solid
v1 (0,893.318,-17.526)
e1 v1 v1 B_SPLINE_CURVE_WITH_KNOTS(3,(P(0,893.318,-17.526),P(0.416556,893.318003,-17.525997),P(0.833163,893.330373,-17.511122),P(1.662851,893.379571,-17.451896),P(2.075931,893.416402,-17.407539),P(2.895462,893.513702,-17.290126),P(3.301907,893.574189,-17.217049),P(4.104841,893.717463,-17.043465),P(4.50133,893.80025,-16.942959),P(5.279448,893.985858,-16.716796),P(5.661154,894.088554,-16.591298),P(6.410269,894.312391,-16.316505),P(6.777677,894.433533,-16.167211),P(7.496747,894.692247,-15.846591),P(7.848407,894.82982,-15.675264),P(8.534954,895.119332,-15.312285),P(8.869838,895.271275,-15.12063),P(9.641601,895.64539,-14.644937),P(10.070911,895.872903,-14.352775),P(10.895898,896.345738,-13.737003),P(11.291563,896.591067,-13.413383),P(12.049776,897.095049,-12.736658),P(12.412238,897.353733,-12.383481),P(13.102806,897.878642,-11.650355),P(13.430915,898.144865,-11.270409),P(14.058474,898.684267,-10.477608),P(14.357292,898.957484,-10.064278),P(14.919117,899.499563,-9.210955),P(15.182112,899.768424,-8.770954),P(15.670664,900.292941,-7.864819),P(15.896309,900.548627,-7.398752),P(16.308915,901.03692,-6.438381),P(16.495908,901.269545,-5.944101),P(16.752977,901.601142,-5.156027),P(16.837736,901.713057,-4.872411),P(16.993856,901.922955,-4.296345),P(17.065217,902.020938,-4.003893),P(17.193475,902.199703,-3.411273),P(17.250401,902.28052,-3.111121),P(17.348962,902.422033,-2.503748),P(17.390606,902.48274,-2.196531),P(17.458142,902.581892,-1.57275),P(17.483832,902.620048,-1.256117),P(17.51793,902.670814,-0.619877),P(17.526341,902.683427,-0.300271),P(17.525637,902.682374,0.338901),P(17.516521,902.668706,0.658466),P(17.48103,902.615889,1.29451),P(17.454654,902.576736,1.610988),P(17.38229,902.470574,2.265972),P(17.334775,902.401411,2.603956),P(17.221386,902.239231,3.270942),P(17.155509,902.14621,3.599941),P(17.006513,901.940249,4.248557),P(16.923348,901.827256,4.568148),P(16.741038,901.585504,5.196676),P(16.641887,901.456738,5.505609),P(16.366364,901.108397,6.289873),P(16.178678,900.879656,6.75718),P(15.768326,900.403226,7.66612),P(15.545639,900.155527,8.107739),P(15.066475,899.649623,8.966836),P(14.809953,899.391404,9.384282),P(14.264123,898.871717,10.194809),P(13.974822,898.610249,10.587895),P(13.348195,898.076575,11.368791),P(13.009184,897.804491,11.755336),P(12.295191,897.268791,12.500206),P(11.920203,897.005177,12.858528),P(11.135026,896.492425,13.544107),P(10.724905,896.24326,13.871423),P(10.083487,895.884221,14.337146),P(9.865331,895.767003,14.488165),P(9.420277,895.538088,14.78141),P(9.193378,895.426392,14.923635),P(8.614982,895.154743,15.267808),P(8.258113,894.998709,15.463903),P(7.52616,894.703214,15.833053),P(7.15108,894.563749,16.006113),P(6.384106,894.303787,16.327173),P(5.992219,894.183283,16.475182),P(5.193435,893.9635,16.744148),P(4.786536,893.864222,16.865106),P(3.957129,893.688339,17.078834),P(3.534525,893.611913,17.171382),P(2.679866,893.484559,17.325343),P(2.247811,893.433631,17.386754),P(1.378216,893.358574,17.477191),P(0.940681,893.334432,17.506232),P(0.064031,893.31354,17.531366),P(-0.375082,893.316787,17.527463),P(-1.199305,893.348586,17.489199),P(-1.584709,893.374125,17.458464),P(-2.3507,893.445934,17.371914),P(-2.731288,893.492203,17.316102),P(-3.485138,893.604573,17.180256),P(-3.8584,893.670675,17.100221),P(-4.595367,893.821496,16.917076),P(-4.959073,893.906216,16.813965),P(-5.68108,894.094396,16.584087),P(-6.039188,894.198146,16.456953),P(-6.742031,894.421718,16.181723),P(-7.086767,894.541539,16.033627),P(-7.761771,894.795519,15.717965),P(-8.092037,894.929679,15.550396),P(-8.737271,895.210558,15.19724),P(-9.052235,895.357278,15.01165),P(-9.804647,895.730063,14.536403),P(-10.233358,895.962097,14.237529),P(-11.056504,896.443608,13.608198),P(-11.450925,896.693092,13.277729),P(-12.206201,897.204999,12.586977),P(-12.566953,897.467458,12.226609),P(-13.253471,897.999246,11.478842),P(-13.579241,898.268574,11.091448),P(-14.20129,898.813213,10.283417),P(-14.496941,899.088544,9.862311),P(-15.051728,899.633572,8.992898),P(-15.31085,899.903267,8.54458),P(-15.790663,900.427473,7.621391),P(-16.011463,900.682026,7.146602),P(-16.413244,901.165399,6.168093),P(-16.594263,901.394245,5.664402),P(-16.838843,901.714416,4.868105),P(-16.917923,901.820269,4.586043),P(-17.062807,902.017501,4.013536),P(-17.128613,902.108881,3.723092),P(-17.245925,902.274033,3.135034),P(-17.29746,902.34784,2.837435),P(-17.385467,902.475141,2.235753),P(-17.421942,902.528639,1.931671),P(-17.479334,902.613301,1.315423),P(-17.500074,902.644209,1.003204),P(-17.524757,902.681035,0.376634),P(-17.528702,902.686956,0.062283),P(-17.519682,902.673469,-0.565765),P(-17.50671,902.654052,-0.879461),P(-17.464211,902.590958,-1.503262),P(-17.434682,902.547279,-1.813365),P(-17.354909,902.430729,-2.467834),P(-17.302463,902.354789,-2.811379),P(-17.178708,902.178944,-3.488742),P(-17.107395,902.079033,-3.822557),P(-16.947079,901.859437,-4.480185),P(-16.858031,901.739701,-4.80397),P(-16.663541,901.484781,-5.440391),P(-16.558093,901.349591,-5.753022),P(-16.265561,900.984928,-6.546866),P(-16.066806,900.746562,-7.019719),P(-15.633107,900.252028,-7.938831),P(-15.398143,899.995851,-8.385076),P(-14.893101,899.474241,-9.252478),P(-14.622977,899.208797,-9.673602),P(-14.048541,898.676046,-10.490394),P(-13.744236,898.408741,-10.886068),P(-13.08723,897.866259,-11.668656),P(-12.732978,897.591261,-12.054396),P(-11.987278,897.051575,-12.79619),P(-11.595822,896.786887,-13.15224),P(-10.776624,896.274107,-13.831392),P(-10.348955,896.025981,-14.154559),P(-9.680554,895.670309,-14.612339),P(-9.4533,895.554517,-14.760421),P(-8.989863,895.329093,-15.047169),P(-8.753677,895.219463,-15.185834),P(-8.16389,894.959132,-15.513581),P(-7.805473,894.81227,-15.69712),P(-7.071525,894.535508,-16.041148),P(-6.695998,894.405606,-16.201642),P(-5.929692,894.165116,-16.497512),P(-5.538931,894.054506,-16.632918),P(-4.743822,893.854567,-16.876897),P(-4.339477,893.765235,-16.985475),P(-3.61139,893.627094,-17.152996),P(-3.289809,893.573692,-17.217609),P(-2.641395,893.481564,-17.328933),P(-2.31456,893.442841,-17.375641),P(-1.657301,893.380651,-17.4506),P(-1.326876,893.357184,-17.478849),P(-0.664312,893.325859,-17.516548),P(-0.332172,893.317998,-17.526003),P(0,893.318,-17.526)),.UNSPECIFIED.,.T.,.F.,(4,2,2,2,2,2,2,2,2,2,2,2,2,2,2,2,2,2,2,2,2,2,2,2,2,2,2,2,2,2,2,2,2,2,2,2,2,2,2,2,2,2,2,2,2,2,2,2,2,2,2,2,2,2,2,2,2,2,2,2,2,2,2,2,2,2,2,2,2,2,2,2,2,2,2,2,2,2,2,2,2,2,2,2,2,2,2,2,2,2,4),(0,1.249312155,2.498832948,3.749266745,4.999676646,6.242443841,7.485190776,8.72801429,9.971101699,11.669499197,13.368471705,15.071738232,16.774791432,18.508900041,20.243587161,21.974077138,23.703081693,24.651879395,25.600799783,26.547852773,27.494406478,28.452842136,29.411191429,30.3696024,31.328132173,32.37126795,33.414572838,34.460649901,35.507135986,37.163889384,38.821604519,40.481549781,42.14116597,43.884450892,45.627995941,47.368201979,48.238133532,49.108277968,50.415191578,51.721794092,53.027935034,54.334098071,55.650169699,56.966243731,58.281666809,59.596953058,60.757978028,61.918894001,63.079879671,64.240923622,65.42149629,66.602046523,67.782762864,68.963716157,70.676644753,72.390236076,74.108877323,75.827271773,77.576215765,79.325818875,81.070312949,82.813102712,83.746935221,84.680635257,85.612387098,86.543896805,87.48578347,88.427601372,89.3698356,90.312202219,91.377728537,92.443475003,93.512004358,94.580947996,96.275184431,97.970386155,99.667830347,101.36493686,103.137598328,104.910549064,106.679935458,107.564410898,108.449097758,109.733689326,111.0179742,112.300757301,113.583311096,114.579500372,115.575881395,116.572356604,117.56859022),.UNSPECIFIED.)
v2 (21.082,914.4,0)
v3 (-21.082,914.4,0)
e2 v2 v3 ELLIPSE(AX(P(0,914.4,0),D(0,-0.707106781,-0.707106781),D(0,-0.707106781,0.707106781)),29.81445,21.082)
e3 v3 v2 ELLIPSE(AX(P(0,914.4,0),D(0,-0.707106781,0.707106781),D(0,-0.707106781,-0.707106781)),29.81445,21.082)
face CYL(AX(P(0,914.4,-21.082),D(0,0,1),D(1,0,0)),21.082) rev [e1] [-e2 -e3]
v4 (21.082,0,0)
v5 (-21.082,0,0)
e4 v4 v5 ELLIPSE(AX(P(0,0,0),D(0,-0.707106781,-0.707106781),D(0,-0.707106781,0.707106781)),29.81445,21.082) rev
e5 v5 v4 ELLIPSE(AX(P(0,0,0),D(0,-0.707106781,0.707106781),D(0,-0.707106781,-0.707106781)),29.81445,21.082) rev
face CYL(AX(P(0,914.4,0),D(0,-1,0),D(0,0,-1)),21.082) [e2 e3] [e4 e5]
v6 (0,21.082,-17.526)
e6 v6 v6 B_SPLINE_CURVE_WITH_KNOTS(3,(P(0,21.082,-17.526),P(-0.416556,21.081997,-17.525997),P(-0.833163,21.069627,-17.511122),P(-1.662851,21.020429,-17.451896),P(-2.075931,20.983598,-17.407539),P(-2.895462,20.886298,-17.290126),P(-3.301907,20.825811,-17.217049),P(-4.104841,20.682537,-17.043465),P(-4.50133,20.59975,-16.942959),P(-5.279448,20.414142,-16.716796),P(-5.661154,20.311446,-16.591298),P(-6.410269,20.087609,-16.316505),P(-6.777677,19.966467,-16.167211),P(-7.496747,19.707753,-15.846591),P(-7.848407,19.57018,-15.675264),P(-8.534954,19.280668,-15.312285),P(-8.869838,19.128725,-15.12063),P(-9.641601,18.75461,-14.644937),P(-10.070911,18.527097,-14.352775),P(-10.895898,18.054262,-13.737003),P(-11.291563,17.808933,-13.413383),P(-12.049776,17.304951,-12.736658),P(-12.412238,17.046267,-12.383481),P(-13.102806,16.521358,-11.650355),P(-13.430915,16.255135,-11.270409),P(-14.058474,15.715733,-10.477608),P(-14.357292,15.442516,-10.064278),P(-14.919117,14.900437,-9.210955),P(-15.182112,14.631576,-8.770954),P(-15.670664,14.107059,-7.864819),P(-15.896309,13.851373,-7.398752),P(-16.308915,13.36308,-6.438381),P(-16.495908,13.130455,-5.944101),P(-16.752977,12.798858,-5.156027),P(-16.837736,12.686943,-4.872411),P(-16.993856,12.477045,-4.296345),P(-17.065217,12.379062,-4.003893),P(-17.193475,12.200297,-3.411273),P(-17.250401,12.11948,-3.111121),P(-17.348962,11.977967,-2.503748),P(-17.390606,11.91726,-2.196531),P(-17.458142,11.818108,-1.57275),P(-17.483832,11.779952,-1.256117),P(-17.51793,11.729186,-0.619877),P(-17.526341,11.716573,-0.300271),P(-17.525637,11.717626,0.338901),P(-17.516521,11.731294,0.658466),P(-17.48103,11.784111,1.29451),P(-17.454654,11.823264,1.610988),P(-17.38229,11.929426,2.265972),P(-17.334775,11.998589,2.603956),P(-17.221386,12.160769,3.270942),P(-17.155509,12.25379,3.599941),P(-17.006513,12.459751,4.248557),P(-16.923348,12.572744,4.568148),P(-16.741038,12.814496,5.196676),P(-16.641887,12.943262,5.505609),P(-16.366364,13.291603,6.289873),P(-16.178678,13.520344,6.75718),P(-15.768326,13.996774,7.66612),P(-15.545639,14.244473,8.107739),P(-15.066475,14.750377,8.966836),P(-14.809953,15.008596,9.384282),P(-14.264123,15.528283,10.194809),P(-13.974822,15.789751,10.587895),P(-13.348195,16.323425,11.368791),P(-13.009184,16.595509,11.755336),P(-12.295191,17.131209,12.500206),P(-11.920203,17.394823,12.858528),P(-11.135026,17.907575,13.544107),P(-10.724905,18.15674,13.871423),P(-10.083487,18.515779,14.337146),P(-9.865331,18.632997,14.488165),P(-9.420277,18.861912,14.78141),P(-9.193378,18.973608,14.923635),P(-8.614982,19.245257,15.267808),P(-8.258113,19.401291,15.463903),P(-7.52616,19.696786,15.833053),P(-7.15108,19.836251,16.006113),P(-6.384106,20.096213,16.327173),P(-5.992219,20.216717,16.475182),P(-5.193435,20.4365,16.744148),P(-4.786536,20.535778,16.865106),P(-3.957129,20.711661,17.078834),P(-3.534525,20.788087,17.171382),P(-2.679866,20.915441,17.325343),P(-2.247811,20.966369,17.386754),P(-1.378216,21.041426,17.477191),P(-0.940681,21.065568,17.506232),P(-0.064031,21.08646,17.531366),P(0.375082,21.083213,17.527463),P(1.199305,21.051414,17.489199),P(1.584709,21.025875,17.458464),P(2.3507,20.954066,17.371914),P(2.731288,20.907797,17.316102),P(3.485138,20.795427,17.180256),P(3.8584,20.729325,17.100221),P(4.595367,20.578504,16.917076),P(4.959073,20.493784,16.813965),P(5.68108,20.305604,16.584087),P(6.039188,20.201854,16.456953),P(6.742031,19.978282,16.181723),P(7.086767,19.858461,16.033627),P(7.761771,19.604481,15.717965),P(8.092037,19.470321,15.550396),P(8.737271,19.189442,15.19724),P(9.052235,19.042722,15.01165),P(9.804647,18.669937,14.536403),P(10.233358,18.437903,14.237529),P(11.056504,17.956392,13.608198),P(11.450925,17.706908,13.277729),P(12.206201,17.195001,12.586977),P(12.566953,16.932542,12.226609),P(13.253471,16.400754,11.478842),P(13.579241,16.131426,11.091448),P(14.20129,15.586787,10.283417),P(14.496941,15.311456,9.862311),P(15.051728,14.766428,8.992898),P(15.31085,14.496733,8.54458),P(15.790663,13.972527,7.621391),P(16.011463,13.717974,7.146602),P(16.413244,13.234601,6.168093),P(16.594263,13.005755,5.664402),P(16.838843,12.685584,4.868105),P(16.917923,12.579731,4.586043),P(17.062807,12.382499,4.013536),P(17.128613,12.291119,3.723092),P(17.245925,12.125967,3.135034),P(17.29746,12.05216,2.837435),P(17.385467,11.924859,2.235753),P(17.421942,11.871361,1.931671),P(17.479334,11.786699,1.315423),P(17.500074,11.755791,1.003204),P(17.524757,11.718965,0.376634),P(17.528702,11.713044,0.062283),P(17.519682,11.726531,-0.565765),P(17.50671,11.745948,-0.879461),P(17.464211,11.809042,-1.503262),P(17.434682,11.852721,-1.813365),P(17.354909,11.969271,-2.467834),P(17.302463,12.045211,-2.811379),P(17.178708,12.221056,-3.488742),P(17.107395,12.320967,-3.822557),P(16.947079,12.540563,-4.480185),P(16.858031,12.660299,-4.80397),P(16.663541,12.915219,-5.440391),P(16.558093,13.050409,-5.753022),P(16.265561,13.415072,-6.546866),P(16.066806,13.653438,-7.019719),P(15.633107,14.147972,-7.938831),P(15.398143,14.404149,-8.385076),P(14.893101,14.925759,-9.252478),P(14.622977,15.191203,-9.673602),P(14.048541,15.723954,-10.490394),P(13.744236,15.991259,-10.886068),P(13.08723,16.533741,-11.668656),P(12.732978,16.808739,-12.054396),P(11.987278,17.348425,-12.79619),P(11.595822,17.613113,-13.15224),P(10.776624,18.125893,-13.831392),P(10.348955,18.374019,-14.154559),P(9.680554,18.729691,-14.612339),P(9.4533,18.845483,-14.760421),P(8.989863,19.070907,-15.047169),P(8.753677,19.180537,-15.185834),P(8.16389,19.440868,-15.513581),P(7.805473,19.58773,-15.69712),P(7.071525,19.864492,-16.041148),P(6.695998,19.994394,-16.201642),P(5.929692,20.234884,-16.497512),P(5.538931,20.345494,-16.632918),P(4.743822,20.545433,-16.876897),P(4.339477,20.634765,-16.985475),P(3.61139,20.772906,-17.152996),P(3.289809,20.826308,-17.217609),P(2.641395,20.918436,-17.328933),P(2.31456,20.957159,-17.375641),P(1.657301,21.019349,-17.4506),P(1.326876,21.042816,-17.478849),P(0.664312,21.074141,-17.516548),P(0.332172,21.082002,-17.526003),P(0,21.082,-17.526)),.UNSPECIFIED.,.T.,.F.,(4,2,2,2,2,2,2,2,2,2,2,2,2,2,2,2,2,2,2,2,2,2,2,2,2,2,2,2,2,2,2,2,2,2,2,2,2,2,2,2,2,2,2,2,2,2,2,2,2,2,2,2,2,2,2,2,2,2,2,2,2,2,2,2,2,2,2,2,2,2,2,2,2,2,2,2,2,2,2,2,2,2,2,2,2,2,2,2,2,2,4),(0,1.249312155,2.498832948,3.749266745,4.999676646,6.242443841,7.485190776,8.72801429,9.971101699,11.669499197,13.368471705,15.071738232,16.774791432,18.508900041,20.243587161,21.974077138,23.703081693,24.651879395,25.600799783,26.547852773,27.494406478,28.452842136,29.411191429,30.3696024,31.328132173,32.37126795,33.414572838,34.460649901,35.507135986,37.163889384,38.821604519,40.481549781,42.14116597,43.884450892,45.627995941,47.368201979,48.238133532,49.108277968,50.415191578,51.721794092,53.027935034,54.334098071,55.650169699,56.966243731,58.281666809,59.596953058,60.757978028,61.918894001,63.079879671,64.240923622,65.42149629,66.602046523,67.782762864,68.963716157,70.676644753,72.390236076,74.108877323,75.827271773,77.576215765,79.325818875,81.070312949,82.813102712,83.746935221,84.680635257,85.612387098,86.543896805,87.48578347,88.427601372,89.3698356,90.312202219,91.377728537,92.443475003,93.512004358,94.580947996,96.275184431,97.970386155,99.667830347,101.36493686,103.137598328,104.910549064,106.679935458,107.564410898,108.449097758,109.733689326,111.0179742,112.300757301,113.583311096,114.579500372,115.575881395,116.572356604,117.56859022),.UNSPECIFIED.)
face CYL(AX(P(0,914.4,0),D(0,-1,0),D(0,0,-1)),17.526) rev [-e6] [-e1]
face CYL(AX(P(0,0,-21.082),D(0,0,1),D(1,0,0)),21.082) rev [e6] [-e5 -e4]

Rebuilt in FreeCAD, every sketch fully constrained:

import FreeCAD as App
import Part
import Sketcher
from FreeCAD import Vector
Q = App.Units.Quantity

doc = App.newDocument("Part")
body = doc.addObject("PartDesign::Body", "Body")

# Sketch on XZ plane
sketch1 = body.newObject("Sketcher::SketchObject", "Sketch")
sketch1.AttachmentSupport = (doc.getObject("XZ_Plane"), [""])
sketch1.MapMode = "FlatFace"
sketch1.addGeometry(Part.Circle(Vector(0, 0, 0), Vector(0, 0, 1), 21), False)
sketch1.addGeometry(Part.Circle(Vector(0, 0, 0), Vector(0, 0, 1), 18), False)
sketch1.addConstraint(Sketcher.Constraint("Coincident", 0, 3, -1, 1))
sketch1.addConstraint(Sketcher.Constraint("Coincident", 1, 3, -1, 1))
sketch1.addConstraint(Sketcher.Constraint("Diameter", 0, Q("1.66 in")))
sketch1.addConstraint(Sketcher.Constraint("Diameter", 1, Q("1.38 in")))
pad1 = body.newObject("PartDesign::Pad", "Pad")
pad1.Profile = sketch1
pad1.Length = Q("36 in")
pad1.Reversed = True

# Sketch on XY plane
sketch2 = body.newObject("Sketcher::SketchObject", "Sketch001")
sketch2.AttachmentSupport = (doc.getObject("XY_Plane"), [""])
sketch2.MapMode = "FlatFace"
sketch2.addGeometry(Part.Circle(Vector(0, 0, 0), Vector(0, 0, 1), 21), False)
sketch2.addGeometry(Part.Circle(Vector(0, 914, 0), Vector(0, 0, 1), 21), False)
sketch2.addConstraint(Sketcher.Constraint("Coincident", 0, 3, -1, 1))
sketch2.addConstraint(Sketcher.Constraint("Equal", 0, 1))
sketch2.addConstraint(Sketcher.Constraint("PointOnObject", 1, 3, -2))
sketch2.addConstraint(Sketcher.Constraint("Diameter", 0, Q("1.66 in")))
sketch2.addConstraint(Sketcher.Constraint("DistanceY", -1, 1, 1, 3, Q("36 in")))
pocket1 = body.newObject("PartDesign::Pocket", "Pocket")
pocket1.Profile = sketch2
pocket1.Type = "ThroughAll"
pocket1.Midplane = True

doc.recompute()
